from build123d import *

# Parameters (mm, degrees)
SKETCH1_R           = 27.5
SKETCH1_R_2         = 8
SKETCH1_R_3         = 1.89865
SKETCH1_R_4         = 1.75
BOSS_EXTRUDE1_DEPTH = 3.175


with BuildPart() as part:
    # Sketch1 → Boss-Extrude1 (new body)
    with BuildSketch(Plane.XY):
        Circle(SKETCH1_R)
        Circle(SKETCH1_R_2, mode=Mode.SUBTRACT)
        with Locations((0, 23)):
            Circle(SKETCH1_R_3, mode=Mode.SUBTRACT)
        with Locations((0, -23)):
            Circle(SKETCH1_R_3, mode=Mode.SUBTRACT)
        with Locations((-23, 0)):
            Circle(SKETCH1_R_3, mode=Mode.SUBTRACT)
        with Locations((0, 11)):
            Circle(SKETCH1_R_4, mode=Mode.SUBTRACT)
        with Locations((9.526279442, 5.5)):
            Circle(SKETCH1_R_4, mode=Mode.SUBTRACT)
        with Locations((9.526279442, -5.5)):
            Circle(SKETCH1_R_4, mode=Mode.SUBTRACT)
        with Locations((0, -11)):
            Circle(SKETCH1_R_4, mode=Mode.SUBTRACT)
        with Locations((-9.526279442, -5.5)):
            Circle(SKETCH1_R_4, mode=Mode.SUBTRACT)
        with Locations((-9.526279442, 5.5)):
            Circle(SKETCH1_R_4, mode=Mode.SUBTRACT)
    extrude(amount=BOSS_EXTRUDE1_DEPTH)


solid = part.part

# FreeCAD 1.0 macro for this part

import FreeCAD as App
import Part
import Sketcher

doc = App.newDocument("Part")
params = doc.addObject("Spreadsheet::Sheet", "Params")
for row, (alias, value) in enumerate([
    ("sketch1_diameter", "55 mm"),
    ("sketch1_diameter2", "16 mm"),
    ("sketch1_diameter3", "3.5 mm"),
    ("pad1_length", "3.175 mm"),
], start=1):
    params.set(f"A{row}", alias)
    params.set(f"B{row}", "=" + value)
    params.setAlias(f"B{row}", alias)

body = doc.addObject("PartDesign::Body", "Body")

# Sketch on XY plane
sketch1 = doc.addObject("Sketcher::SketchObject", "Sketch")
body.addObject(sketch1)
sketch1.AttachmentSupport = (doc.XY_Plane, [""])
sketch1.MapMode = "FlatFace"
sketch1.addGeometry([
    Part.Circle(App.Vector(0, 0, 0), App.Vector(0, 0, 1), 27.5),  # 0
    Part.Circle(App.Vector(-9.5, -5.5, 0), App.Vector(0, 0, 1), 1.8),  # 1
    Part.Circle(App.Vector(0, -23, 0), App.Vector(0, 0, 1), 1.9),  # 2
    Part.Circle(App.Vector(0, -11, 0), App.Vector(0, 0, 1), 1.8),  # 3
    Part.Circle(App.Vector(9.5, -5.5, 0), App.Vector(0, 0, 1), 1.8),  # 4
    Part.Circle(App.Vector(-23, 0, 0), App.Vector(0, 0, 1), 1.9),  # 5
    Part.Circle(App.Vector(-9.5, 5.5, 0), App.Vector(0, 0, 1), 1.8),  # 6
    Part.Circle(App.Vector(0, 0, 0), App.Vector(0, 0, 1), 8),  # 7
    Part.Circle(App.Vector(0, 11, 0), App.Vector(0, 0, 1), 1.8),  # 8
    Part.Circle(App.Vector(9.5, 5.5, 0), App.Vector(0, 0, 1), 1.8),  # 9
    Part.Circle(App.Vector(0, 23, 0), App.Vector(0, 0, 1), 1.9),  # 10
], False)
sketch1.addConstraint([
    Sketcher.Constraint("Coincident", 0, 3, -1, 1),
    Sketcher.Constraint("Coincident", 7, 3, -1, 1),
    Sketcher.Constraint("Equal", 1, 3),
    Sketcher.Constraint("Equal", 3, 4),
    Sketcher.Constraint("Equal", 2, 5),
    Sketcher.Constraint("Equal", 4, 6),
    Sketcher.Constraint("Equal", 6, 8),
    Sketcher.Constraint("Equal", 8, 9),
    Sketcher.Constraint("Equal", 5, 10),
    Sketcher.Constraint("Symmetric", 4, 3, 6, 3, -1, 1),
    Sketcher.Constraint("Symmetric", 3, 3, 8, 3, -1, 1),
    Sketcher.Constraint("Symmetric", 1, 3, 9, 3, -1, 1),
    Sketcher.Constraint("Symmetric", 2, 3, 10, 3, -1, 1),
    Sketcher.Constraint("Symmetric", 1, 3, 4, 3, -2),
    Sketcher.Constraint("PointOnObject", 2, 3, -2),
    Sketcher.Constraint("PointOnObject", 3, 3, -2),
    Sketcher.Constraint("PointOnObject", 5, 3, -1),
    Sketcher.Constraint("Diameter", 0, 55.0),
    Sketcher.Constraint("Diameter", 7, 16.0),
    Sketcher.Constraint("Diameter", 1, 3.5),
    Sketcher.Constraint("DistanceY", 2, 3, -1, 1, 23.0),
    Sketcher.Constraint("DistanceY", 3, 3, -1, 1, 11.0),
    Sketcher.Constraint("DistanceX", 5, 3, -1, 1, 23.0),
    Sketcher.Constraint("DistanceY", 1, 3, 6, 3, 11.0),
    Sketcher.Constraint("Diameter", 2, 3.7973),
    Sketcher.Constraint("DistanceX", 1, 3, -1, 1, 9.526279),
])
sketch1.setExpression("Constraints[17]", "Params.sketch1_diameter")
sketch1.setExpression("Constraints[18]", "Params.sketch1_diameter2")
sketch1.setExpression("Constraints[19]", "Params.sketch1_diameter3")
pad1 = doc.addObject("PartDesign::Pad", "Pad")
body.addObject(pad1)
pad1.Profile = sketch1
pad1.setExpression("Length", "Params.pad1_length")

doc.recompute()
